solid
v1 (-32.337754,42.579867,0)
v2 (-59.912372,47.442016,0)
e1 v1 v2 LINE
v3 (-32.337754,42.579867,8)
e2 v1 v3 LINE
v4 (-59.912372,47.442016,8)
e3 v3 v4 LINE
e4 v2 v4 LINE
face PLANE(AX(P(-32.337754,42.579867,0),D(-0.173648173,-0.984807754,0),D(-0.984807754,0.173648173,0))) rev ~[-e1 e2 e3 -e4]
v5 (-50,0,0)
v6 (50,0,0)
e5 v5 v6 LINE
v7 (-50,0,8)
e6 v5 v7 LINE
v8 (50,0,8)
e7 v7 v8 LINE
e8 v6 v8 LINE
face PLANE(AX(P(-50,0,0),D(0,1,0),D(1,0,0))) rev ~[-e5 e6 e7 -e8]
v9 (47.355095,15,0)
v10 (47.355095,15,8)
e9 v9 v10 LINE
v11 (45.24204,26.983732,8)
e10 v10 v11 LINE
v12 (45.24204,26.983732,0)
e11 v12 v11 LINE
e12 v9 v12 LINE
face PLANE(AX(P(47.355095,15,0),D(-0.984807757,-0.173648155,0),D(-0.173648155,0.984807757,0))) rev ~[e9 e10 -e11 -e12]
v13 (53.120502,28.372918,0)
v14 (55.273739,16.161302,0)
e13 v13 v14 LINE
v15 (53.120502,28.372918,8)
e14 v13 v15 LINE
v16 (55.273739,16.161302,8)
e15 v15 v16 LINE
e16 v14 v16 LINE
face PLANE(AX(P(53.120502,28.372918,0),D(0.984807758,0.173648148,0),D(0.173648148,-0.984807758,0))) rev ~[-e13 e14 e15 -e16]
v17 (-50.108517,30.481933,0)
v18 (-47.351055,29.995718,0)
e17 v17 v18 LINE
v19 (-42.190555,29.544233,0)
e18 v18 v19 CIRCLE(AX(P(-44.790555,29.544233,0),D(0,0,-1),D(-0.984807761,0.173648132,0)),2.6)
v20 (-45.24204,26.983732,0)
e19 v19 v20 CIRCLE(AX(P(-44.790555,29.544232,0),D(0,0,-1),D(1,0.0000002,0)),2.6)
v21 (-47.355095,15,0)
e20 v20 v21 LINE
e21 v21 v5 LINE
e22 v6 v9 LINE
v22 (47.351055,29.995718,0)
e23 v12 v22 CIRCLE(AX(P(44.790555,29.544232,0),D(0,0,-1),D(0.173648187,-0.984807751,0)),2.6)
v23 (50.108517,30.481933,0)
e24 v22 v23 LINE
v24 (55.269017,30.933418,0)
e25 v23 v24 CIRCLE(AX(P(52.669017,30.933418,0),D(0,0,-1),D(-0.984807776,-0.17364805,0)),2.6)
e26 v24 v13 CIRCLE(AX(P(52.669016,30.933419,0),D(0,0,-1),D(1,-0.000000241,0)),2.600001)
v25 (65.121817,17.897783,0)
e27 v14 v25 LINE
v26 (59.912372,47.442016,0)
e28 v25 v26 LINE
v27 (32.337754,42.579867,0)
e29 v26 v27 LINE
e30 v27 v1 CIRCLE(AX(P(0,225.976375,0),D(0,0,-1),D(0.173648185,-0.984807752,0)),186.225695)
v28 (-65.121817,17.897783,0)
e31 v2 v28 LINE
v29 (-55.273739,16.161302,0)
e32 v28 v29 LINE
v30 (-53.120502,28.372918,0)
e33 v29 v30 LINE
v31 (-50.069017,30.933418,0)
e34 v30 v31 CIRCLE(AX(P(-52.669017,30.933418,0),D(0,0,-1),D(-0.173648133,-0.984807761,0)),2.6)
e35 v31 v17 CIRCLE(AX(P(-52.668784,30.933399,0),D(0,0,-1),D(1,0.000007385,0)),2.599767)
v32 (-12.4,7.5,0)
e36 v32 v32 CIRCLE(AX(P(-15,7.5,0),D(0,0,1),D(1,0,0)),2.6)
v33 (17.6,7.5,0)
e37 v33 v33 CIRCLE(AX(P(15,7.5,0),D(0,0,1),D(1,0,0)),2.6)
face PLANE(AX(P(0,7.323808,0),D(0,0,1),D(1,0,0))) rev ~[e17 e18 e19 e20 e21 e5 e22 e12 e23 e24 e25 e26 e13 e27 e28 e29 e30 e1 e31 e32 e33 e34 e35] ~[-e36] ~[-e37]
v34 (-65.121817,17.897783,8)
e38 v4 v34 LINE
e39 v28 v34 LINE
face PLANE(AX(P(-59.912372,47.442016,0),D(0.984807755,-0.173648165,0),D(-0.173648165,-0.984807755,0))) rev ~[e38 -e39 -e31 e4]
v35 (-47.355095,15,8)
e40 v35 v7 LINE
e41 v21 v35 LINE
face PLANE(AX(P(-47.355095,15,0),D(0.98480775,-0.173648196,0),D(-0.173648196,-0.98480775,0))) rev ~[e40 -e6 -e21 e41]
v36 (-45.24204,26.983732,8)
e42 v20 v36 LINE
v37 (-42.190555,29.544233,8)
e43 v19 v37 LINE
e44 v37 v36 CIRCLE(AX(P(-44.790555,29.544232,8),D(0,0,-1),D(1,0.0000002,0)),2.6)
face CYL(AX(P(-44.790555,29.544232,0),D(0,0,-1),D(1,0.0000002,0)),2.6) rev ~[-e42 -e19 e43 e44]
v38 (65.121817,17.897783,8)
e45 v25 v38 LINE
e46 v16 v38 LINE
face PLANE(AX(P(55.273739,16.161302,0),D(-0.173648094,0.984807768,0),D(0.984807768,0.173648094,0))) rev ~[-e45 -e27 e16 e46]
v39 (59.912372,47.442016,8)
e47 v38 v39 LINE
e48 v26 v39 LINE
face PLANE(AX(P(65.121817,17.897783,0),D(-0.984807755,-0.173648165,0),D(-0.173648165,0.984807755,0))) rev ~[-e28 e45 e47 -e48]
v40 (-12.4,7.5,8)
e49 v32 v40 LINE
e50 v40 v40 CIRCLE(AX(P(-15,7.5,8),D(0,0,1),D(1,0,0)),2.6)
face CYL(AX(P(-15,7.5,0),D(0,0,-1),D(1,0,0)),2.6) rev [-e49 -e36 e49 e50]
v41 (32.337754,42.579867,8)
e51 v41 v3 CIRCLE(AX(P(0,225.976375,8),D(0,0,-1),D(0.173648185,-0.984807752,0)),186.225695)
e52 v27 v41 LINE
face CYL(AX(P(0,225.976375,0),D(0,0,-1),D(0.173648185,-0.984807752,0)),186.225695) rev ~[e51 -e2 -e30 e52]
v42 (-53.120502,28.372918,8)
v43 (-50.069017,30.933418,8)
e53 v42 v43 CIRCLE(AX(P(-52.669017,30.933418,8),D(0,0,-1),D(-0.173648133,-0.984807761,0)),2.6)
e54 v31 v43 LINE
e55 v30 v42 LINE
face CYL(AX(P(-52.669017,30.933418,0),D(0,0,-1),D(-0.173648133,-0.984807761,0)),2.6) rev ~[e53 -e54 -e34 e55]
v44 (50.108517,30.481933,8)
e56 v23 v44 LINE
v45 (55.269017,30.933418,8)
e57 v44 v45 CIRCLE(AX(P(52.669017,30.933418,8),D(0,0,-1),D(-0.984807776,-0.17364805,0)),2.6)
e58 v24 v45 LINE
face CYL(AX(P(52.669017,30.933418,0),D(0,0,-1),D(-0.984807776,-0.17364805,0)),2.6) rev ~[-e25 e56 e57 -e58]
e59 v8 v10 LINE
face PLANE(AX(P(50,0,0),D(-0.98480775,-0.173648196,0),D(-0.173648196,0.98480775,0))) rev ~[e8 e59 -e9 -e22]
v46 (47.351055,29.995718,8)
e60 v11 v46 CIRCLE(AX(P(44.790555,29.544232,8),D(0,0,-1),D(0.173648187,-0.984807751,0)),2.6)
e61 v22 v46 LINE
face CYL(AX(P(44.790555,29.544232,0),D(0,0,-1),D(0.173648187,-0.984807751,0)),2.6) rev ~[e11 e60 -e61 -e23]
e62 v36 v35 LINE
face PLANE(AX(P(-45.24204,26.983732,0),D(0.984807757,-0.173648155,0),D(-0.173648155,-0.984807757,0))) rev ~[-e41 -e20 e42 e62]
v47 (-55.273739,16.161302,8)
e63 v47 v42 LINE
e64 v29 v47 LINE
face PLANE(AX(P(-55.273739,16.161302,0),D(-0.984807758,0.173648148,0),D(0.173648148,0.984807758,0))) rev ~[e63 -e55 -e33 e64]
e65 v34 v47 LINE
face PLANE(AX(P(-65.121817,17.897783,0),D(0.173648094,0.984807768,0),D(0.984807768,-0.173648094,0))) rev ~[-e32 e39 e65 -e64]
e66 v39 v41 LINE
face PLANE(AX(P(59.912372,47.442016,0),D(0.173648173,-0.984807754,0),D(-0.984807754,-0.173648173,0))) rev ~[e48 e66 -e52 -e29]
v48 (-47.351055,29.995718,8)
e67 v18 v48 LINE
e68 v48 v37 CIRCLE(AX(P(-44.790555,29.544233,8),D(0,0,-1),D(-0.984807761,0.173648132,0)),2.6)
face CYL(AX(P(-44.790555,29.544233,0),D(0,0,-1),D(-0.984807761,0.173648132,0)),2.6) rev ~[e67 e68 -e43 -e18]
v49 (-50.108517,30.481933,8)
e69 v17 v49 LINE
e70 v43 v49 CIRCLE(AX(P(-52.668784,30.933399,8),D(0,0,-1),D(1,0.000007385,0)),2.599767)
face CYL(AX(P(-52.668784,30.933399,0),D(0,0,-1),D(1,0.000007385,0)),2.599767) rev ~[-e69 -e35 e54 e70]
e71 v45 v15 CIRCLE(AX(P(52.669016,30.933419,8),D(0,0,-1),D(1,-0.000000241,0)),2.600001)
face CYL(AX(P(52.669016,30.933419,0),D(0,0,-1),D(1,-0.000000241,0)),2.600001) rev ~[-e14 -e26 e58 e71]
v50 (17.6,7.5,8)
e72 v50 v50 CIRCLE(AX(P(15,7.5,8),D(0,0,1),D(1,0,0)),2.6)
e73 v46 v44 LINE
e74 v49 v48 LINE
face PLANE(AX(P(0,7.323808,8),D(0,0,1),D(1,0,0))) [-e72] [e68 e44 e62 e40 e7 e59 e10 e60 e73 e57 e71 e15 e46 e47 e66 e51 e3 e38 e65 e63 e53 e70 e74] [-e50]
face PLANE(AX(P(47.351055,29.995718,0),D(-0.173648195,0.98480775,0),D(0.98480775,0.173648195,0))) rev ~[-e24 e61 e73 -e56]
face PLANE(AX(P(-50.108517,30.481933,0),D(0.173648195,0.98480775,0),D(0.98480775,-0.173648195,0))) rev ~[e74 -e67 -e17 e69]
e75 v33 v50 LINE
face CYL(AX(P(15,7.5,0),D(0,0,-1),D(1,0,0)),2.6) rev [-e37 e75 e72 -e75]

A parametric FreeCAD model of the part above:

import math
import FreeCAD as App
import Part
import Sketcher
Q = App.Units.Quantity

doc = App.newDocument("Part")
body = doc.addObject("PartDesign::Body", "Body")

sketch1 = body.newObject("Sketcher::SketchObject", "Sketch")
sketch1.AttachmentSupport = (doc.getObject("XY_Plane"), [""])
sketch1.MapMode = "FlatFace"
sketch1.addGeometry([
    Part.LineSegment(App.Vector(-47.36, 15, 0), App.Vector(-50, 0, 0)),
    Part.LineSegment(App.Vector(-50, 0, 0), App.Vector(50, 0, 0)),
    Part.LineSegment(App.Vector(50, 0, 0), App.Vector(47.36, 15, 0)),
    Part.LineSegment(App.Vector(47.36, 15, 0), App.Vector(45.24, 26.98, 0)),
    Part.ArcOfCircle(Part.Circle(App.Vector(44.79, 29.54, 0), App.Vector(0, 0, 1), 2.6), math.radians(10), math.radians(280)),
    Part.LineSegment(App.Vector(47.35, 30, 0), App.Vector(50.11, 30.48, 0)),
    Part.ArcOfCircle(Part.Circle(App.Vector(52.67, 30.93, 0), App.Vector(0, 0, 1), 2.6), math.radians(0), math.radians(190)),
    Part.ArcOfCircle(Part.Circle(App.Vector(52.67, 30.93, 0), App.Vector(0, 0, 1), 2.6), math.radians(-80), math.radians(0)),
    Part.LineSegment(App.Vector(53.12, 28.37, 0), App.Vector(55.27, 16.16, 0)),
    Part.LineSegment(App.Vector(55.27, 16.16, 0), App.Vector(65.12, 17.9, 0)),
    Part.LineSegment(App.Vector(65.12, 17.9, 0), App.Vector(59.91, 47.44, 0)),
    Part.LineSegment(App.Vector(59.91, 47.44, 0), App.Vector(32.34, 42.58, 0)),
    Part.ArcOfCircle(Part.Circle(App.Vector(0, 225.98, 0), App.Vector(0, 0, 1), 186.23), math.radians(-100), math.radians(-80)),
    Part.LineSegment(App.Vector(-32.34, 42.58, 0), App.Vector(-59.91, 47.44, 0)),
    Part.LineSegment(App.Vector(-59.91, 47.44, 0), App.Vector(-65.12, 17.9, 0)),
    Part.LineSegment(App.Vector(-65.12, 17.9, 0), App.Vector(-55.27, 16.16, 0)),
    Part.LineSegment(App.Vector(-55.27, 16.16, 0), App.Vector(-53.12, 28.37, 0)),
    Part.ArcOfCircle(Part.Circle(App.Vector(-52.67, 30.93, 0), App.Vector(0, 0, 1), 2.6), math.radians(0), math.radians(260)),
    Part.ArcOfCircle(Part.Circle(App.Vector(-52.67, 30.93, 0), App.Vector(0, 0, 1), 2.6), math.radians(-10), math.radians(0)),
    Part.LineSegment(App.Vector(-50.11, 30.48, 0), App.Vector(-47.35, 30, 0)),
    Part.ArcOfCircle(Part.Circle(App.Vector(-44.79, 29.54, 0), App.Vector(0, 0, 1), 2.6), math.radians(0), math.radians(170)),
    Part.ArcOfCircle(Part.Circle(App.Vector(-44.79, 29.54, 0), App.Vector(0, 0, 1), 2.6), math.radians(-100), math.radians(0)),
    Part.LineSegment(App.Vector(-45.24, 26.98, 0), App.Vector(-47.36, 15, 0)),
    Part.Circle(App.Vector(-15, 7.5, 0), App.Vector(0, 0, 1), 2.6),
    Part.Circle(App.Vector(15, 7.5, 0), App.Vector(0, 0, 1), 2.6),
], False)
sketch1.addConstraint([
    Sketcher.Constraint("Coincident", 0, 2, 1, 1),
    Sketcher.Constraint("Coincident", 1, 2, 2, 1),
    Sketcher.Constraint("Coincident", 2, 2, 3, 1),
    Sketcher.Constraint("Coincident", 3, 2, 4, 2),
    Sketcher.Constraint("Coincident", 4, 1, 5, 1),
    Sketcher.Constraint("Coincident", 5, 2, 6, 2),
    Sketcher.Constraint("Tangent", 6, 1, 7, 2),
    Sketcher.Constraint("Coincident", 7, 1, 8, 1),
    Sketcher.Constraint("Coincident", 8, 2, 9, 1),
    Sketcher.Constraint("Coincident", 9, 2, 10, 1),
    Sketcher.Constraint("Coincident", 10, 2, 11, 1),
    Sketcher.Constraint("Tangent", 11, 2, 12, 2),
    Sketcher.Constraint("Tangent", 12, 1, 13, 1),
    Sketcher.Constraint("Coincident", 13, 2, 14, 1),
    Sketcher.Constraint("Coincident", 14, 2, 15, 1),
    Sketcher.Constraint("Coincident", 15, 2, 16, 1),
    Sketcher.Constraint("Coincident", 16, 2, 17, 2),
    Sketcher.Constraint("Coincident", 17, 1, 18, 2),
    Sketcher.Constraint("Coincident", 18, 1, 19, 1),
    Sketcher.Constraint("Coincident", 19, 2, 20, 2),
    Sketcher.Constraint("Tangent", 20, 1, 21, 2),
    Sketcher.Constraint("Coincident", 21, 1, 22, 1),
    Sketcher.Constraint("Coincident", 22, 2, 0, 1),
    Sketcher.Constraint("Horizontal", 1),
    Sketcher.Constraint("Equal", 4, 6),
    Sketcher.Constraint("Equal", 6, 7),
    Sketcher.Constraint("Equal", 7, 17),
    Sketcher.Constraint("Equal", 17, 20),
    Sketcher.Constraint("Equal", 20, 21),
    Sketcher.Constraint("Equal", 21, 23),
    Sketcher.Constraint("Equal", 23, 24),
    Sketcher.Constraint("Symmetric", 0, 2, 1, 2, -1, 1),
    Sketcher.Constraint("Symmetric", 6, 3, 17, 3, -2),
    Sketcher.Constraint("Symmetric", 4, 3, 20, 3, -2),
    Sketcher.Constraint("Symmetric", 23, 3, 24, 3, -2),
    Sketcher.Constraint("Symmetric", 11, 2, 12, 1, -2),
    Sketcher.Constraint("Symmetric", 9, 2, 14, 2, -2),
    Sketcher.Constraint("Symmetric", 8, 2, 15, 2, -2),
    Sketcher.Constraint("Symmetric", 5, 2, 18, 1, -2),
    Sketcher.Constraint("Symmetric", 2, 2, 22, 2, -2),
    Sketcher.Constraint("Parallel", 2, 3),
    Sketcher.Constraint("Perpendicular", 3, 5),
    Sketcher.Constraint("Perpendicular", 5, 8),
    Sketcher.Constraint("Perpendicular", 8, 9),
    Sketcher.Constraint("Perpendicular", 9, 10),
    Sketcher.Constraint("Perpendicular", 10, 11),
    Sketcher.Constraint("Perpendicular", 13, 14),
    Sketcher.Constraint("Perpendicular", 15, 16),
    Sketcher.Constraint("Perpendicular", 16, 19),
    Sketcher.Constraint("Perpendicular", 19, 22),
    Sketcher.Constraint("Horizontal", 17, 3, 6, 1),
    Sketcher.Constraint("Horizontal", 6, 1, 17, 1),
    Sketcher.Constraint("Horizontal", 21, 3, 20, 1),
    Sketcher.Constraint("Diameter", 23, Q("5.2 mm")),
    Sketcher.Constraint("DistanceX", 1, 1, 1, 2, Q("100 mm")),
    Sketcher.Constraint("Angle", 0, Q("-100.000001 deg")),
    Sketcher.Constraint("Distance", 9, Q("10 mm")),
    Sketcher.Constraint("Distance", 10, Q("30 mm")),
    Sketcher.Constraint("Distance", 11, Q("28.000001 mm")),
    Sketcher.Constraint("DistanceX", 23, 3, -1, 1, Q("15 mm")),
    Sketcher.Constraint("DistanceY", -1, 1, 2, 2, Q("15 mm")),
    Sketcher.Constraint("Distance", 5, Q("2.8 mm")),
    Sketcher.Constraint("Distance", 8, Q("12.4 mm")),
    Sketcher.Constraint("DistanceY", -1, 1, 23, 3, Q("7.5 mm")),
    Sketcher.Constraint("Radius", 12, Q("186.225695 mm")),
    Sketcher.Constraint("Radius", 18, Q("2.599767 mm")),
    Sketcher.Constraint("Distance", 3, Q("12.1686 mm")),
    Sketcher.Constraint("DistanceY", -1, 1, 18, 3, Q("30.933399 mm")),
    Sketcher.Constraint("DistanceY", -1, 1, 8, 2, Q("16.161302 mm")),
    Sketcher.Constraint("DistanceX", 4, 3, 4, 1, Q("2.5605 mm")),
])
pad1 = body.newObject("PartDesign::Pad", "Pad")
pad1.Profile = sketch1
pad1.Length = 8

doc.recompute()
